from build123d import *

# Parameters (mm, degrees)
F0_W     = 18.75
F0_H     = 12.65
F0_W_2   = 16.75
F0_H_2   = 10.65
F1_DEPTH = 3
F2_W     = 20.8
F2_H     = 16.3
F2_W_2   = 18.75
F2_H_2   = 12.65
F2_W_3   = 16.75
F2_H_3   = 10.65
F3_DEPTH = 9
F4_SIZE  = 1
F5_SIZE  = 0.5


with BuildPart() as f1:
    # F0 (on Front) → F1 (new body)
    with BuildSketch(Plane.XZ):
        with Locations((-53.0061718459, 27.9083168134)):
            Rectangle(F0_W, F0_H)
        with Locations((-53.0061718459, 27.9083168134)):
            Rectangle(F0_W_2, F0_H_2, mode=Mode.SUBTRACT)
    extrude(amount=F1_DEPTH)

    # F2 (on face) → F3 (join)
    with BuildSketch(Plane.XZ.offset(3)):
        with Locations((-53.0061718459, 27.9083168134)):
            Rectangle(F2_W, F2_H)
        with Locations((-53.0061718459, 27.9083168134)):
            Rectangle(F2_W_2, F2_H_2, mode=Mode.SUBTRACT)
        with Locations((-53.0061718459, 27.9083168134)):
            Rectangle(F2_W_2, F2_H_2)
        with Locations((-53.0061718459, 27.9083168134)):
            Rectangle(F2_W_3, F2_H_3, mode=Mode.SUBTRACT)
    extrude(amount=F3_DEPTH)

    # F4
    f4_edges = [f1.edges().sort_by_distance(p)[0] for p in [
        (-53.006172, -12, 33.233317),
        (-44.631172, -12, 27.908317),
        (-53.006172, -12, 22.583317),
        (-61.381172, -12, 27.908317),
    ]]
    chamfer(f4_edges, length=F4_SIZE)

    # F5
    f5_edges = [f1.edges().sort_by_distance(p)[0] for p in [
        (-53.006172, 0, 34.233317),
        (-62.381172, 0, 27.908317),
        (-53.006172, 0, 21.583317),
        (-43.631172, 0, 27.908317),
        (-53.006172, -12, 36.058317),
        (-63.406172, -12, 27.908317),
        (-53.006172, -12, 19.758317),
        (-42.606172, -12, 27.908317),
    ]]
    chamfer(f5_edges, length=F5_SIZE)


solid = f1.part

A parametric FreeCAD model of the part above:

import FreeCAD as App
import Part
import Sketcher
Q = App.Units.Quantity


def edges_at(feature, points):
    """Names of the edges that pass closest to the given points."""
    edges = feature.Shape.Edges
    near = lambda p: min(range(len(edges)), key=lambda i: edges[i].distToShape(Part.Vertex(*p))[0])
    return sorted({f"Edge{near(p) + 1}" for p in points})

doc = App.newDocument("Part")
params = doc.addObject("Spreadsheet::Sheet", "Params")
for row, (alias, value) in enumerate([
    ("sketch1_width", "18.75 mm"),
    ("sketch1_height", "12.65 mm"),
    ("pad1_length", "3 mm"),
    ("sketch2_width", "20.8 mm"),
    ("sketch2_height", "16.3 mm"),
    ("sketch2_width2", "16.75 mm"),
    ("sketch2_height2", "10.65 mm"),
    ("pad2_length", "9 mm"),
    ("chamfer_size", "1 mm"),
    ("chamfer2_size", "0.5 mm"),
], start=1):
    params.set(f"A{row}", alias)
    params.set(f"B{row}", "=" + value)
    params.setAlias(f"B{row}", alias)

body = doc.addObject("PartDesign::Body", "Body")

sketch1 = body.newObject("Sketcher::SketchObject", "Sketch")
sketch1.AttachmentSupport = (doc.getObject("XZ_Plane"), [""])
sketch1.MapMode = "FlatFace"
sketch1.addGeometry(Part.LineSegment(App.Vector(-62.381172, 34.233317, 0), App.Vector(-62.381172, 21.583317, 0)), False)
sketch1.addGeometry(Part.LineSegment(App.Vector(-62.381172, 21.583317, 0), App.Vector(-43.631172, 21.583317, 0)), False)
sketch1.addGeometry(Part.LineSegment(App.Vector(-43.631172, 21.583317, 0), App.Vector(-43.631172, 34.233317, 0)), False)
sketch1.addGeometry(Part.LineSegment(App.Vector(-43.631172, 34.233317, 0), App.Vector(-62.381172, 34.233317, 0)), False)
sketch1.addGeometry(Part.LineSegment(App.Vector(-44.631172, 22.583317, 0), App.Vector(-61.381172, 22.583317, 0)), False)
sketch1.addGeometry(Part.LineSegment(App.Vector(-61.381172, 22.583317, 0), App.Vector(-61.381172, 33.233317, 0)), False)
sketch1.addGeometry(Part.LineSegment(App.Vector(-61.381172, 33.233317, 0), App.Vector(-44.631172, 33.233317, 0)), False)
sketch1.addGeometry(Part.LineSegment(App.Vector(-44.631172, 33.233317, 0), App.Vector(-44.631172, 22.583317, 0)), False)
sketch1.addConstraint(Sketcher.Constraint("Coincident", 0, 2, 1, 1))
sketch1.addConstraint(Sketcher.Constraint("Coincident", 1, 2, 2, 1))
sketch1.addConstraint(Sketcher.Constraint("Coincident", 2, 2, 3, 1))
sketch1.addConstraint(Sketcher.Constraint("Coincident", 3, 2, 0, 1))
sketch1.addConstraint(Sketcher.Constraint("Coincident", 4, 2, 5, 1))
sketch1.addConstraint(Sketcher.Constraint("Coincident", 5, 2, 6, 1))
sketch1.addConstraint(Sketcher.Constraint("Coincident", 6, 2, 7, 1))
sketch1.addConstraint(Sketcher.Constraint("Coincident", 7, 2, 4, 1))
sketch1.addConstraint(Sketcher.Constraint("Vertical", 0))
sketch1.addConstraint(Sketcher.Constraint("Horizontal", 1))
sketch1.addConstraint(Sketcher.Constraint("Vertical", 2))
sketch1.addConstraint(Sketcher.Constraint("Horizontal", 3))
sketch1.addConstraint(Sketcher.Constraint("Horizontal", 4))
sketch1.addConstraint(Sketcher.Constraint("Vertical", 5))
sketch1.addConstraint(Sketcher.Constraint("Horizontal", 6))
sketch1.addConstraint(Sketcher.Constraint("Vertical", 7))
sketch1.addConstraint(Sketcher.Constraint("DistanceX", 0, 2, 4, 2, Q("1 mm")))
sketch1.addConstraint(Sketcher.Constraint("DistanceY", 0, 2, 4, 2, Q("1 mm")))
sketch1.addConstraint(Sketcher.Constraint("DistanceY", 5, 2, 3, 2, Q("1 mm")))
sketch1.addConstraint(Sketcher.Constraint("DistanceX", 6, 2, 2, 2, Q("1 mm")))
sketch1.addConstraint(Sketcher.Constraint("DistanceX", 1, 1, 1, 2, Q("18.75 mm")))
sketch1.addConstraint(Sketcher.Constraint("DistanceY", 0, 2, 0, 1, Q("12.65 mm")))
sketch1.addConstraint(Sketcher.Constraint("DistanceX", 0, 2, -1, 1, Q("62.381172 mm")))
sketch1.addConstraint(Sketcher.Constraint("DistanceY", -1, 1, 0, 2, Q("21.583317 mm")))
sketch1.setExpression("Constraints[20]", "Params.sketch1_width")
sketch1.setExpression("Constraints[21]", "Params.sketch1_height")
pad1 = body.newObject("PartDesign::Pad", "Pad")
pad1.Profile = sketch1
pad1.setExpression("Length", "Params.pad1_length")

sketch2 = body.newObject("Sketcher::SketchObject", "Sketch001")
sketch2.AttachmentSupport = (doc.getObject("XZ_Plane"), [""])
sketch2.MapMode = "FlatFace"
sketch2.AttachmentOffset = App.Placement(App.Vector(0, 0, 3), App.Rotation())
sketch2.addGeometry(Part.LineSegment(App.Vector(-63.406172, 36.058317, 0), App.Vector(-63.406172, 19.758317, 0)), False)
sketch2.addGeometry(Part.LineSegment(App.Vector(-63.406172, 19.758317, 0), App.Vector(-42.606172, 19.758317, 0)), False)
sketch2.addGeometry(Part.LineSegment(App.Vector(-42.606172, 19.758317, 0), App.Vector(-42.606172, 36.058317, 0)), False)
sketch2.addGeometry(Part.LineSegment(App.Vector(-42.606172, 36.058317, 0), App.Vector(-63.406172, 36.058317, 0)), False)
sketch2.addGeometry(Part.LineSegment(App.Vector(-44.631172, 22.583317, 0), App.Vector(-61.381172, 22.583317, 0)), False)
sketch2.addGeometry(Part.LineSegment(App.Vector(-61.381172, 22.583317, 0), App.Vector(-61.381172, 33.233317, 0)), False)
sketch2.addGeometry(Part.LineSegment(App.Vector(-61.381172, 33.233317, 0), App.Vector(-44.631172, 33.233317, 0)), False)
sketch2.addGeometry(Part.LineSegment(App.Vector(-44.631172, 33.233317, 0), App.Vector(-44.631172, 22.583317, 0)), False)
sketch2.addConstraint(Sketcher.Constraint("Coincident", 0, 2, 1, 1))
sketch2.addConstraint(Sketcher.Constraint("Coincident", 1, 2, 2, 1))
sketch2.addConstraint(Sketcher.Constraint("Coincident", 2, 2, 3, 1))
sketch2.addConstraint(Sketcher.Constraint("Coincident", 3, 2, 0, 1))
sketch2.addConstraint(Sketcher.Constraint("Coincident", 4, 2, 5, 1))
sketch2.addConstraint(Sketcher.Constraint("Coincident", 5, 2, 6, 1))
sketch2.addConstraint(Sketcher.Constraint("Coincident", 6, 2, 7, 1))
sketch2.addConstraint(Sketcher.Constraint("Coincident", 7, 2, 4, 1))
sketch2.addConstraint(Sketcher.Constraint("Vertical", 0))
sketch2.addConstraint(Sketcher.Constraint("Horizontal", 1))
sketch2.addConstraint(Sketcher.Constraint("Vertical", 2))
sketch2.addConstraint(Sketcher.Constraint("Horizontal", 3))
sketch2.addConstraint(Sketcher.Constraint("Horizontal", 4))
sketch2.addConstraint(Sketcher.Constraint("Vertical", 5))
sketch2.addConstraint(Sketcher.Constraint("Horizontal", 6))
sketch2.addConstraint(Sketcher.Constraint("Vertical", 7))
sketch2.addConstraint(Sketcher.Constraint("DistanceX", 1, 1, 1, 2, Q("20.8 mm")))
sketch2.addConstraint(Sketcher.Constraint("DistanceY", 0, 2, 0, 1, Q("16.3 mm")))
sketch2.addConstraint(Sketcher.Constraint("DistanceX", 4, 2, 4, 1, Q("16.75 mm")))
sketch2.addConstraint(Sketcher.Constraint("DistanceY", 5, 1, 5, 2, Q("10.65 mm")))
sketch2.addConstraint(Sketcher.Constraint("DistanceX", 0, 2, 4, 2, Q("2.025 mm")))
sketch2.addConstraint(Sketcher.Constraint("DistanceY", 0, 2, 4, 2, Q("2.825 mm")))
sketch2.addConstraint(Sketcher.Constraint("DistanceX", 0, 2, -1, 1, Q("63.406172 mm")))
sketch2.addConstraint(Sketcher.Constraint("DistanceY", -1, 1, 0, 2, Q("19.758317 mm")))
sketch2.setExpression("Constraints[16]", "Params.sketch2_width")
sketch2.setExpression("Constraints[17]", "Params.sketch2_height")
sketch2.setExpression("Constraints[18]", "Params.sketch2_width2")
sketch2.setExpression("Constraints[19]", "Params.sketch2_height2")
pad2 = body.newObject("PartDesign::Pad", "Pad001")
pad2.Profile = sketch2
pad2.setExpression("Length", "Params.pad2_length")
doc.recompute()

chamfer = body.newObject("PartDesign::Chamfer", "Chamfer")
chamfer.Base = (pad2, edges_at(pad2, [
    (-53.006, -12, 33.233),
    (-44.631, -12, 27.908),
    (-53.006, -12, 22.583),
    (-61.381, -12, 27.908),
]))
chamfer.setExpression("Size", "Params.chamfer_size")
doc.recompute()

chamfer2 = body.newObject("PartDesign::Chamfer", "Chamfer001")
chamfer2.Base = (chamfer, edges_at(chamfer, [
    (-53.006, 0, 34.233),
    (-62.381, 0, 27.908),
    (-53.006, 0, 21.583),
    (-43.631, 0, 27.908),
    (-53.006, -12, 36.058),
    (-63.406, -12, 27.908),
    (-53.006, -12, 19.758),
    (-42.606, -12, 27.908),
]))
chamfer2.setExpression("Size", "Params.chamfer2_size")

doc.recompute()
